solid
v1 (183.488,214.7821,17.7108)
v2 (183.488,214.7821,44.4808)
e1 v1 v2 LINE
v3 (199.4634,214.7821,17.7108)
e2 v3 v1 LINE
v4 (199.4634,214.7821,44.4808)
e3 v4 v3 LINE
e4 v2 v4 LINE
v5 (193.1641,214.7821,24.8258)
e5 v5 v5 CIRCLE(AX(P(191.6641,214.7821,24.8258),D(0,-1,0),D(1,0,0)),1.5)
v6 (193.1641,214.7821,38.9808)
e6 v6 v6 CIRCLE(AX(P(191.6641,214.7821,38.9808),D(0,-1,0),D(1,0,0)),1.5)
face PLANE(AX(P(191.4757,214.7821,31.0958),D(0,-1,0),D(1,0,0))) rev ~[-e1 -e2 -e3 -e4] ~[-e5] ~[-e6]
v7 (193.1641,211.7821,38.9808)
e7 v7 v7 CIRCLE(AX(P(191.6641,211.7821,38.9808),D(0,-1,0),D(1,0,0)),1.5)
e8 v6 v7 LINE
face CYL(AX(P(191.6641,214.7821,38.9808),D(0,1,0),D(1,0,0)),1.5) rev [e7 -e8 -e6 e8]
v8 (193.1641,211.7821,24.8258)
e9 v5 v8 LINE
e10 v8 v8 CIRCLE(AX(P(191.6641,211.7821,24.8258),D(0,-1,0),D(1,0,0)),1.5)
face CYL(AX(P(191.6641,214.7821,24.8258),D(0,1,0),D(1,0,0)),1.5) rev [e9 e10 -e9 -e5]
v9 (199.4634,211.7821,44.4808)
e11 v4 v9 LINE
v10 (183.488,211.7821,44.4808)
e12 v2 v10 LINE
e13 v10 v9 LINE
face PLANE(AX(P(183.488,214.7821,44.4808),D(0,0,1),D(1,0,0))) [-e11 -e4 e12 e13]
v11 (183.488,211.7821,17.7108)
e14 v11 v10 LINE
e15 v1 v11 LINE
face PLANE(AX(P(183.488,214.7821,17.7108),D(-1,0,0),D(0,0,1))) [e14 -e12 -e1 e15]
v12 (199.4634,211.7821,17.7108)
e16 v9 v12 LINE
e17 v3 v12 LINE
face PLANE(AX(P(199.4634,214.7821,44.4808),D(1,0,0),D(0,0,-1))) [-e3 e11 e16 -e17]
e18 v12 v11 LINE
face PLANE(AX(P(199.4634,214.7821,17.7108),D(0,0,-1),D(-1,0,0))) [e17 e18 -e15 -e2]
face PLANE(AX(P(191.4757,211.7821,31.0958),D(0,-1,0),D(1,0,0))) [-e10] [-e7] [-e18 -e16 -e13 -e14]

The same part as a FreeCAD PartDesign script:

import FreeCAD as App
import Part
import Sketcher

doc = App.newDocument("Part")
body = doc.addObject("PartDesign::Body", "Body")

sketch1 = body.newObject("Sketcher::SketchObject", "Sketch")
sketch1.AttachmentSupport = (doc.getObject("XZ_Plane"), [""])
sketch1.MapMode = "FlatFace"
sketch1.AttachmentOffset = App.Placement(App.Vector(0, 0, -214.7821), App.Rotation())
sketch1.addGeometry(Part.LineSegment(App.Vector(183.5, 17.7, 0), App.Vector(199.5, 17.7, 0)), False)
sketch1.addGeometry(Part.LineSegment(App.Vector(199.5, 17.7, 0), App.Vector(199.5, 44.5, 0)), False)
sketch1.addGeometry(Part.LineSegment(App.Vector(199.5, 44.5, 0), App.Vector(183.5, 44.5, 0)), False)
sketch1.addGeometry(Part.LineSegment(App.Vector(183.5, 44.5, 0), App.Vector(183.5, 17.7, 0)), False)
sketch1.addGeometry(Part.Circle(App.Vector(191.7, 24.8, 0), App.Vector(0, 0, 1), 1.5), False)
sketch1.addGeometry(Part.Circle(App.Vector(191.7, 39, 0), App.Vector(0, 0, 1), 1.5), False)
sketch1.addConstraint(Sketcher.Constraint("Coincident", 0, 2, 1, 1))
sketch1.addConstraint(Sketcher.Constraint("Coincident", 1, 2, 2, 1))
sketch1.addConstraint(Sketcher.Constraint("Coincident", 2, 2, 3, 1))
sketch1.addConstraint(Sketcher.Constraint("Coincident", 3, 2, 0, 1))
sketch1.addConstraint(Sketcher.Constraint("Horizontal", 0))
sketch1.addConstraint(Sketcher.Constraint("Vertical", 1))
sketch1.addConstraint(Sketcher.Constraint("Horizontal", 2))
sketch1.addConstraint(Sketcher.Constraint("Vertical", 3))
sketch1.addConstraint(Sketcher.Constraint("Equal", 4, 5))
sketch1.addConstraint(Sketcher.Constraint("Vertical", 4, 3, 5, 3))
sketch1.addConstraint(Sketcher.Constraint("Diameter", 4, 3.0))
sketch1.addConstraint(Sketcher.Constraint("DistanceY", 1, 1, 1, 2, 26.77))
sketch1.addConstraint(Sketcher.Constraint("DistanceY", 5, 3, 1, 2, 5.5))
sketch1.addConstraint(Sketcher.Constraint("DistanceX", 0, 1, 0, 2, 15.9754))
sketch1.addConstraint(Sketcher.Constraint("DistanceX", -1, 1, 4, 3, 191.664))
sketch1.addConstraint(Sketcher.Constraint("DistanceX", -1, 1, 2, 2, 183.488))
sketch1.addConstraint(Sketcher.Constraint("DistanceY", 4, 3, 5, 3, 14.155))
sketch1.addConstraint(Sketcher.Constraint("DistanceY", -1, 1, 4, 3, 24.8258))
pad1 = body.newObject("PartDesign::Pad", "Pad")
pad1.Profile = sketch1
pad1.Length = 3

doc.recompute()
